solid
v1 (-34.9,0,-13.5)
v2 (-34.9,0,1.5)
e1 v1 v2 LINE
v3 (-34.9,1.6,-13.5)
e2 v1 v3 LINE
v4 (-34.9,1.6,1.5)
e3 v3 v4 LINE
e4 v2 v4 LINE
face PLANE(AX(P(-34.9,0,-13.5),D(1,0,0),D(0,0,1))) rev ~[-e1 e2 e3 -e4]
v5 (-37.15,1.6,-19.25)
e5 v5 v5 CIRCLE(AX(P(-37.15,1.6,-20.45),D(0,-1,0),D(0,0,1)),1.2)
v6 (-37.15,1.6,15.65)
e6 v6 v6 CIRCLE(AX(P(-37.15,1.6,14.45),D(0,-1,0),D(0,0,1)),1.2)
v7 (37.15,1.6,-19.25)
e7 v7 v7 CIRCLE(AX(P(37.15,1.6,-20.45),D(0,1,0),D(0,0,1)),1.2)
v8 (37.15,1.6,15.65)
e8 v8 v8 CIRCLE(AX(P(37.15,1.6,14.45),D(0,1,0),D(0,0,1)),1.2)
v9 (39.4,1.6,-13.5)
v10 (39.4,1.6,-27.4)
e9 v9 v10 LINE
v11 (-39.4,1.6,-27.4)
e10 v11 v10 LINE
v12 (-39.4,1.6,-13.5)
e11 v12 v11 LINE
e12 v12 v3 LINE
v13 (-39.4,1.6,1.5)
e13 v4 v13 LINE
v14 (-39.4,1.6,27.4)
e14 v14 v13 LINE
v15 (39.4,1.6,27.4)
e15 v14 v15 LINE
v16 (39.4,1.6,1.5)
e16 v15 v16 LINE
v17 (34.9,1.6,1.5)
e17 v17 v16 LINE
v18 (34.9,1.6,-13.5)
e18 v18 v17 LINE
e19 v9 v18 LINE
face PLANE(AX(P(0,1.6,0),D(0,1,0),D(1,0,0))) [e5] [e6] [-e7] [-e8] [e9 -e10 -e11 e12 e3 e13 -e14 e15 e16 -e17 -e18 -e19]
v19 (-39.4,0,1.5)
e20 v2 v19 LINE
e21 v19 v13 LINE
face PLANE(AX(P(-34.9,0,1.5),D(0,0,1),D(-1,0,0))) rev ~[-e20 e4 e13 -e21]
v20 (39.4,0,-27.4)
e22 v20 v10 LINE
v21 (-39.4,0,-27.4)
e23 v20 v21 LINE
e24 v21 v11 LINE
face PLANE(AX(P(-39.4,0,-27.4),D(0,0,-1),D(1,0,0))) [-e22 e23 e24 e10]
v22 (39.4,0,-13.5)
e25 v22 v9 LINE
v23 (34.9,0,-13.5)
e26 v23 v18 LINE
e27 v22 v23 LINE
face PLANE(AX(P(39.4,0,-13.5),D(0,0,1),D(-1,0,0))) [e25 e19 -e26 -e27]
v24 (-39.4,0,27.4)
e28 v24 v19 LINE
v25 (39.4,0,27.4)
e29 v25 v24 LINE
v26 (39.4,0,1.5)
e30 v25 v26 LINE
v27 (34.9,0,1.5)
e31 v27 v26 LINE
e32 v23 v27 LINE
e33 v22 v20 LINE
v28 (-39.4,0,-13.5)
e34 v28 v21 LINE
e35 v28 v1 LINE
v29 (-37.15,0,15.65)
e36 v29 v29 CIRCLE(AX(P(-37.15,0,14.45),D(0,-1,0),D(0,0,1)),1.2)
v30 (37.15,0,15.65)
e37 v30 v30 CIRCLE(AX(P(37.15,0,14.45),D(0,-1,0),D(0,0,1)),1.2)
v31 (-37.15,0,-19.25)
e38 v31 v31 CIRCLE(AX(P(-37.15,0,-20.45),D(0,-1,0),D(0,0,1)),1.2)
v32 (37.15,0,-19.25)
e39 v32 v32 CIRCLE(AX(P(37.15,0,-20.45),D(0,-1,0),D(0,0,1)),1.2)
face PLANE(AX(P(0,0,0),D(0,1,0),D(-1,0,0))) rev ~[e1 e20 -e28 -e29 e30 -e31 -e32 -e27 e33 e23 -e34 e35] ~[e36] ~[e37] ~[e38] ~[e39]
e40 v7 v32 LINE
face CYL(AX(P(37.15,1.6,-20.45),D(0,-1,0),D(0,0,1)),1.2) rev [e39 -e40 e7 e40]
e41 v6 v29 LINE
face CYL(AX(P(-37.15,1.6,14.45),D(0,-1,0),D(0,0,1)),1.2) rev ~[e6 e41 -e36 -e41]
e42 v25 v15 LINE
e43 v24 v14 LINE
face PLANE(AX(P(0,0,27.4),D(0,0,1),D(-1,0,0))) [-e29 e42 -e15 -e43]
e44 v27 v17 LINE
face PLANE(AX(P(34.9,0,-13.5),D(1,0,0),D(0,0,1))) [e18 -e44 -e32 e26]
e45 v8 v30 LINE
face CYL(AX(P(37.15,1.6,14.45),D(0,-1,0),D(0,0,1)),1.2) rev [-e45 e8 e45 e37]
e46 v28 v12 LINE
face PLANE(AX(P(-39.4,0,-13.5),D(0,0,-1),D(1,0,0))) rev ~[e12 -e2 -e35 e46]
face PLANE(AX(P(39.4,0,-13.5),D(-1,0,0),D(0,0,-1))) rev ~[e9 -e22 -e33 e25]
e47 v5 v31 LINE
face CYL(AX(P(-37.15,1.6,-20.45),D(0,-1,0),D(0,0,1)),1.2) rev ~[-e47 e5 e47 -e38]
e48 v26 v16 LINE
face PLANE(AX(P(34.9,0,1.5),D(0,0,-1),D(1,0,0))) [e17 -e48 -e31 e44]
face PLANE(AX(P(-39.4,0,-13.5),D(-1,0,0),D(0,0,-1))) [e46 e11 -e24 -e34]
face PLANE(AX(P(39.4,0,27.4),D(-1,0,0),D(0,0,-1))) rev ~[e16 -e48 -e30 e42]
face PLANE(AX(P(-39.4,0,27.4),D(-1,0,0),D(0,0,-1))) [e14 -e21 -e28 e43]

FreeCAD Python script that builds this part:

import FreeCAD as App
import Part
import Sketcher
from FreeCAD import Vector
Q = App.Units.Quantity

doc = App.newDocument("Part")
params = doc.addObject("Spreadsheet::Sheet", "Params")
for row, (alias, value) in enumerate([
    ("sketch1_height", "15 mm"),
    ("sketch1_height2", "20 mm"),
    ("sketch1_width", "4.5 mm"),
    ("sketch1_height3", "13.9 mm"),
    ("sketch1_height4", "25.9 mm"),
    ("pad1_length", "1.6 mm"),
    ("sketch2_diameter", "2.4 mm"),
    ("hole_diameter", "2.4 mm"),
    ("sketch3_width", "30 mm"),
    ("sketch3_height", "20 mm"),
    ("pad2_length", "1.6 mm"),
], start=1):
    params.set(f"A{row}", alias)
    params.set(f"B{row}", "=" + value)
    params.setAlias(f"B{row}", alias)

body = doc.addObject("PartDesign::Body", "Body")

sketch1 = body.newObject("Sketcher::SketchObject", "Sketch")
sketch1.AttachmentSupport = (doc.getObject("XZ_Plane"), [""])
sketch1.MapMode = "FlatFace"
sketch1.addGeometry(Part.LineSegment(Vector(-39.4, -27.4, 0), Vector(-39.4, -13.5, 0)), False)
sketch1.addGeometry(Part.LineSegment(Vector(-39.4, -13.5, 0), Vector(-34.9, -13.5, 0)), False)
sketch1.addGeometry(Part.LineSegment(Vector(-34.9, -13.5, 0), Vector(-34.9, 1.5, 0)), False)
sketch1.addGeometry(Part.LineSegment(Vector(-34.9, 1.5, 0), Vector(-39.4, 1.5, 0)), False)
sketch1.addGeometry(Part.LineSegment(Vector(-39.4, 1.5, 0), Vector(-39.4, 27.4, 0)), False)
sketch1.addGeometry(Part.LineSegment(Vector(-39.4, 27.4, 0), Vector(39.4, 27.4, 0)), False)
sketch1.addGeometry(Part.LineSegment(Vector(39.4, 27.4, 0), Vector(39.4, 1.5, 0)), False)
sketch1.addGeometry(Part.LineSegment(Vector(39.4, 1.5, 0), Vector(34.9, 1.5, 0)), False)
sketch1.addGeometry(Part.LineSegment(Vector(34.9, 1.5, 0), Vector(34.9, -13.5, 0)), False)
sketch1.addGeometry(Part.LineSegment(Vector(34.9, -13.5, 0), Vector(39.4, -13.5, 0)), False)
sketch1.addGeometry(Part.LineSegment(Vector(39.4, -13.5, 0), Vector(39.4, -27.4, 0)), False)
sketch1.addGeometry(Part.LineSegment(Vector(39.4, -27.4, 0), Vector(-39.4, -27.4, 0)), False)
sketch1.addGeometry(Part.LineSegment(Vector(-15, -22.4, 0), Vector(15, -22.4, 0)), False)
sketch1.addGeometry(Part.LineSegment(Vector(15, -22.4, 0), Vector(15, -2.4, 0)), False)
sketch1.addGeometry(Part.LineSegment(Vector(15, -2.4, 0), Vector(-15, -2.4, 0)), False)
sketch1.addGeometry(Part.LineSegment(Vector(-15, -2.4, 0), Vector(-15, -22.4, 0)), False)
sketch1.addConstraint(Sketcher.Constraint("Coincident", 0, 2, 1, 1))
sketch1.addConstraint(Sketcher.Constraint("Coincident", 1, 2, 2, 1))
sketch1.addConstraint(Sketcher.Constraint("Coincident", 2, 2, 3, 1))
sketch1.addConstraint(Sketcher.Constraint("Coincident", 3, 2, 4, 1))
sketch1.addConstraint(Sketcher.Constraint("Coincident", 4, 2, 5, 1))
sketch1.addConstraint(Sketcher.Constraint("Coincident", 5, 2, 6, 1))
sketch1.addConstraint(Sketcher.Constraint("Coincident", 6, 2, 7, 1))
sketch1.addConstraint(Sketcher.Constraint("Coincident", 7, 2, 8, 1))
sketch1.addConstraint(Sketcher.Constraint("Coincident", 8, 2, 9, 1))
sketch1.addConstraint(Sketcher.Constraint("Coincident", 9, 2, 10, 1))
sketch1.addConstraint(Sketcher.Constraint("Coincident", 10, 2, 11, 1))
sketch1.addConstraint(Sketcher.Constraint("Coincident", 11, 2, 0, 1))
sketch1.addConstraint(Sketcher.Constraint("Coincident", 12, 2, 13, 1))
sketch1.addConstraint(Sketcher.Constraint("Coincident", 13, 2, 14, 1))
sketch1.addConstraint(Sketcher.Constraint("Coincident", 14, 2, 15, 1))
sketch1.addConstraint(Sketcher.Constraint("Coincident", 15, 2, 12, 1))
sketch1.addConstraint(Sketcher.Constraint("Vertical", 0))
sketch1.addConstraint(Sketcher.Constraint("Horizontal", 1))
sketch1.addConstraint(Sketcher.Constraint("Vertical", 2))
sketch1.addConstraint(Sketcher.Constraint("Horizontal", 3))
sketch1.addConstraint(Sketcher.Constraint("Vertical", 4))
sketch1.addConstraint(Sketcher.Constraint("Horizontal", 5))
sketch1.addConstraint(Sketcher.Constraint("Vertical", 6))
sketch1.addConstraint(Sketcher.Constraint("Horizontal", 7))
sketch1.addConstraint(Sketcher.Constraint("Vertical", 8))
sketch1.addConstraint(Sketcher.Constraint("Horizontal", 9))
sketch1.addConstraint(Sketcher.Constraint("Vertical", 10))
sketch1.addConstraint(Sketcher.Constraint("Horizontal", 11))
sketch1.addConstraint(Sketcher.Constraint("Horizontal", 12))
sketch1.addConstraint(Sketcher.Constraint("Vertical", 13))
sketch1.addConstraint(Sketcher.Constraint("Horizontal", 14))
sketch1.addConstraint(Sketcher.Constraint("Vertical", 15))
sketch1.addConstraint(Sketcher.Constraint("Symmetric", 4, 2, 10, 2, -1, 1))
sketch1.addConstraint(Sketcher.Constraint("Symmetric", 3, 2, 6, 2, -2))
sketch1.addConstraint(Sketcher.Constraint("Symmetric", 1, 2, 8, 2, -2))
sketch1.addConstraint(Sketcher.Constraint("Vertical", 0, 2, 3, 2))
sketch1.addConstraint(Sketcher.Constraint("DistanceY", 2, 1, 2, 2, Q("15 mm")))
sketch1.addConstraint(Sketcher.Constraint("DistanceY", 13, 1, 13, 2, Q("20 mm")))
sketch1.addConstraint(Sketcher.Constraint("DistanceX", 1, 1, 1, 2, Q("4.5 mm")))
sketch1.addConstraint(Sketcher.Constraint("DistanceY", 0, 1, 0, 2, Q("13.9 mm")))
sketch1.addConstraint(Sketcher.Constraint("DistanceY", 4, 1, 4, 2, Q("25.9 mm")))
sketch1.addConstraint(Sketcher.Constraint("DistanceX", -1, 1, 12, 2, Q("15 mm")))
sketch1.addConstraint(Sketcher.Constraint("DistanceX", 14, 2, -1, 1, Q("15 mm")))
sketch1.addConstraint(Sketcher.Constraint("DistanceY", 10, 2, 12, 2, Q("5 mm")))
sketch1.addConstraint(Sketcher.Constraint("DistanceX", 0, 2, -1, 1, Q("39.4 mm")))
sketch1.setExpression("Constraints[36]", "Params.sketch1_height")
sketch1.setExpression("Constraints[37]", "Params.sketch1_height2")
sketch1.setExpression("Constraints[38]", "Params.sketch1_width")
sketch1.setExpression("Constraints[39]", "Params.sketch1_height3")
sketch1.setExpression("Constraints[40]", "Params.sketch1_height4")
pad1 = body.newObject("PartDesign::Pad", "Pad")
pad1.Profile = sketch1
pad1.setExpression("Length", "Params.pad1_length")
pad1.Reversed = True

sketch2 = body.newObject("Sketcher::SketchObject", "Sketch001")
sketch2.AttachmentSupport = (doc.getObject("XZ_Plane"), [""])
sketch2.MapMode = "FlatFace"
sketch2.AttachmentOffset = App.Placement(Vector(0, 0, -1.6), App.Rotation())
sketch2.addGeometry(Part.Circle(Vector(-37.1, -20.4, 0), Vector(0, 0, 1), 1.2), False)
sketch2.addGeometry(Part.Circle(Vector(-37.1, 14.4, 0), Vector(0, 0, 1), 1.2), False)
sketch2.addConstraint(Sketcher.Constraint("Equal", 0, 1))
sketch2.addConstraint(Sketcher.Constraint("Vertical", 0, 3, 1, 3))
sketch2.addConstraint(Sketcher.Constraint("Diameter", 0, Q("2.4 mm")))
sketch2.addConstraint(Sketcher.Constraint("DistanceY", 0, 3, 1, 3, Q("34.9 mm")))
sketch2.addConstraint(Sketcher.Constraint("DistanceX", 0, 3, -1, 1, Q("37.15 mm")))
sketch2.addConstraint(Sketcher.Constraint("DistanceY", 0, 3, -1, 1, Q("20.45 mm")))
sketch2.setExpression("Constraints[2]", "Params.sketch2_diameter")
doc.recompute()
hole = body.newObject("PartDesign::Hole", "Hole")
hole.Profile = sketch2
hole.ThreadType = "None"
hole.setExpression("Diameter", "Params.hole_diameter")
hole.DepthType = "ThroughAll"
hole.Reversed = True
doc.recompute()

mirrored = body.newObject("PartDesign::Mirrored", "Mirrored")
mirrored.Originals = [hole]
mirrored.MirrorPlane = (doc.getObject("YZ_Plane"), [""])
body.Tip = mirrored

sketch3 = body.newObject("Sketcher::SketchObject", "Sketch002")
sketch3.AttachmentSupport = (doc.getObject("XZ_Plane"), [""])
sketch3.MapMode = "FlatFace"
sketch3.AttachmentOffset = App.Placement(Vector(0, 0, -1.6), App.Rotation())
sketch3.addGeometry(Part.LineSegment(Vector(15, -2, 0), Vector(15, -22, 0)), False)
sketch3.addGeometry(Part.LineSegment(Vector(15, -22, 0), Vector(-15, -22, 0)), False)
sketch3.addGeometry(Part.LineSegment(Vector(-15, -22, 0), Vector(-15, -2, 0)), False)
sketch3.addGeometry(Part.LineSegment(Vector(-15, -2, 0), Vector(15, -2, 0)), False)
sketch3.addConstraint(Sketcher.Constraint("Coincident", 0, 2, 1, 1))
sketch3.addConstraint(Sketcher.Constraint("Coincident", 1, 2, 2, 1))
sketch3.addConstraint(Sketcher.Constraint("Coincident", 2, 2, 3, 1))
sketch3.addConstraint(Sketcher.Constraint("Coincident", 3, 2, 0, 1))
sketch3.addConstraint(Sketcher.Constraint("Vertical", 0))
sketch3.addConstraint(Sketcher.Constraint("Horizontal", 1))
sketch3.addConstraint(Sketcher.Constraint("Vertical", 2))
sketch3.addConstraint(Sketcher.Constraint("Horizontal", 3))
sketch3.addConstraint(Sketcher.Constraint("DistanceX", 1, 2, 1, 1, Q("30 mm")))
sketch3.addConstraint(Sketcher.Constraint("DistanceY", 0, 2, 0, 1, Q("20 mm")))
sketch3.addConstraint(Sketcher.Constraint("DistanceX", -1, 1, 0, 2, Q("15 mm")))
sketch3.addConstraint(Sketcher.Constraint("DistanceY", 0, 2, -1, 1, Q("22.4 mm")))
sketch3.setExpression("Constraints[8]", "Params.sketch3_width")
sketch3.setExpression("Constraints[9]", "Params.sketch3_height")
pad2 = body.newObject("PartDesign::Pad", "Pad001")
pad2.Profile = sketch3
pad2.setExpression("Length", "Params.pad2_length")

doc.recompute()
